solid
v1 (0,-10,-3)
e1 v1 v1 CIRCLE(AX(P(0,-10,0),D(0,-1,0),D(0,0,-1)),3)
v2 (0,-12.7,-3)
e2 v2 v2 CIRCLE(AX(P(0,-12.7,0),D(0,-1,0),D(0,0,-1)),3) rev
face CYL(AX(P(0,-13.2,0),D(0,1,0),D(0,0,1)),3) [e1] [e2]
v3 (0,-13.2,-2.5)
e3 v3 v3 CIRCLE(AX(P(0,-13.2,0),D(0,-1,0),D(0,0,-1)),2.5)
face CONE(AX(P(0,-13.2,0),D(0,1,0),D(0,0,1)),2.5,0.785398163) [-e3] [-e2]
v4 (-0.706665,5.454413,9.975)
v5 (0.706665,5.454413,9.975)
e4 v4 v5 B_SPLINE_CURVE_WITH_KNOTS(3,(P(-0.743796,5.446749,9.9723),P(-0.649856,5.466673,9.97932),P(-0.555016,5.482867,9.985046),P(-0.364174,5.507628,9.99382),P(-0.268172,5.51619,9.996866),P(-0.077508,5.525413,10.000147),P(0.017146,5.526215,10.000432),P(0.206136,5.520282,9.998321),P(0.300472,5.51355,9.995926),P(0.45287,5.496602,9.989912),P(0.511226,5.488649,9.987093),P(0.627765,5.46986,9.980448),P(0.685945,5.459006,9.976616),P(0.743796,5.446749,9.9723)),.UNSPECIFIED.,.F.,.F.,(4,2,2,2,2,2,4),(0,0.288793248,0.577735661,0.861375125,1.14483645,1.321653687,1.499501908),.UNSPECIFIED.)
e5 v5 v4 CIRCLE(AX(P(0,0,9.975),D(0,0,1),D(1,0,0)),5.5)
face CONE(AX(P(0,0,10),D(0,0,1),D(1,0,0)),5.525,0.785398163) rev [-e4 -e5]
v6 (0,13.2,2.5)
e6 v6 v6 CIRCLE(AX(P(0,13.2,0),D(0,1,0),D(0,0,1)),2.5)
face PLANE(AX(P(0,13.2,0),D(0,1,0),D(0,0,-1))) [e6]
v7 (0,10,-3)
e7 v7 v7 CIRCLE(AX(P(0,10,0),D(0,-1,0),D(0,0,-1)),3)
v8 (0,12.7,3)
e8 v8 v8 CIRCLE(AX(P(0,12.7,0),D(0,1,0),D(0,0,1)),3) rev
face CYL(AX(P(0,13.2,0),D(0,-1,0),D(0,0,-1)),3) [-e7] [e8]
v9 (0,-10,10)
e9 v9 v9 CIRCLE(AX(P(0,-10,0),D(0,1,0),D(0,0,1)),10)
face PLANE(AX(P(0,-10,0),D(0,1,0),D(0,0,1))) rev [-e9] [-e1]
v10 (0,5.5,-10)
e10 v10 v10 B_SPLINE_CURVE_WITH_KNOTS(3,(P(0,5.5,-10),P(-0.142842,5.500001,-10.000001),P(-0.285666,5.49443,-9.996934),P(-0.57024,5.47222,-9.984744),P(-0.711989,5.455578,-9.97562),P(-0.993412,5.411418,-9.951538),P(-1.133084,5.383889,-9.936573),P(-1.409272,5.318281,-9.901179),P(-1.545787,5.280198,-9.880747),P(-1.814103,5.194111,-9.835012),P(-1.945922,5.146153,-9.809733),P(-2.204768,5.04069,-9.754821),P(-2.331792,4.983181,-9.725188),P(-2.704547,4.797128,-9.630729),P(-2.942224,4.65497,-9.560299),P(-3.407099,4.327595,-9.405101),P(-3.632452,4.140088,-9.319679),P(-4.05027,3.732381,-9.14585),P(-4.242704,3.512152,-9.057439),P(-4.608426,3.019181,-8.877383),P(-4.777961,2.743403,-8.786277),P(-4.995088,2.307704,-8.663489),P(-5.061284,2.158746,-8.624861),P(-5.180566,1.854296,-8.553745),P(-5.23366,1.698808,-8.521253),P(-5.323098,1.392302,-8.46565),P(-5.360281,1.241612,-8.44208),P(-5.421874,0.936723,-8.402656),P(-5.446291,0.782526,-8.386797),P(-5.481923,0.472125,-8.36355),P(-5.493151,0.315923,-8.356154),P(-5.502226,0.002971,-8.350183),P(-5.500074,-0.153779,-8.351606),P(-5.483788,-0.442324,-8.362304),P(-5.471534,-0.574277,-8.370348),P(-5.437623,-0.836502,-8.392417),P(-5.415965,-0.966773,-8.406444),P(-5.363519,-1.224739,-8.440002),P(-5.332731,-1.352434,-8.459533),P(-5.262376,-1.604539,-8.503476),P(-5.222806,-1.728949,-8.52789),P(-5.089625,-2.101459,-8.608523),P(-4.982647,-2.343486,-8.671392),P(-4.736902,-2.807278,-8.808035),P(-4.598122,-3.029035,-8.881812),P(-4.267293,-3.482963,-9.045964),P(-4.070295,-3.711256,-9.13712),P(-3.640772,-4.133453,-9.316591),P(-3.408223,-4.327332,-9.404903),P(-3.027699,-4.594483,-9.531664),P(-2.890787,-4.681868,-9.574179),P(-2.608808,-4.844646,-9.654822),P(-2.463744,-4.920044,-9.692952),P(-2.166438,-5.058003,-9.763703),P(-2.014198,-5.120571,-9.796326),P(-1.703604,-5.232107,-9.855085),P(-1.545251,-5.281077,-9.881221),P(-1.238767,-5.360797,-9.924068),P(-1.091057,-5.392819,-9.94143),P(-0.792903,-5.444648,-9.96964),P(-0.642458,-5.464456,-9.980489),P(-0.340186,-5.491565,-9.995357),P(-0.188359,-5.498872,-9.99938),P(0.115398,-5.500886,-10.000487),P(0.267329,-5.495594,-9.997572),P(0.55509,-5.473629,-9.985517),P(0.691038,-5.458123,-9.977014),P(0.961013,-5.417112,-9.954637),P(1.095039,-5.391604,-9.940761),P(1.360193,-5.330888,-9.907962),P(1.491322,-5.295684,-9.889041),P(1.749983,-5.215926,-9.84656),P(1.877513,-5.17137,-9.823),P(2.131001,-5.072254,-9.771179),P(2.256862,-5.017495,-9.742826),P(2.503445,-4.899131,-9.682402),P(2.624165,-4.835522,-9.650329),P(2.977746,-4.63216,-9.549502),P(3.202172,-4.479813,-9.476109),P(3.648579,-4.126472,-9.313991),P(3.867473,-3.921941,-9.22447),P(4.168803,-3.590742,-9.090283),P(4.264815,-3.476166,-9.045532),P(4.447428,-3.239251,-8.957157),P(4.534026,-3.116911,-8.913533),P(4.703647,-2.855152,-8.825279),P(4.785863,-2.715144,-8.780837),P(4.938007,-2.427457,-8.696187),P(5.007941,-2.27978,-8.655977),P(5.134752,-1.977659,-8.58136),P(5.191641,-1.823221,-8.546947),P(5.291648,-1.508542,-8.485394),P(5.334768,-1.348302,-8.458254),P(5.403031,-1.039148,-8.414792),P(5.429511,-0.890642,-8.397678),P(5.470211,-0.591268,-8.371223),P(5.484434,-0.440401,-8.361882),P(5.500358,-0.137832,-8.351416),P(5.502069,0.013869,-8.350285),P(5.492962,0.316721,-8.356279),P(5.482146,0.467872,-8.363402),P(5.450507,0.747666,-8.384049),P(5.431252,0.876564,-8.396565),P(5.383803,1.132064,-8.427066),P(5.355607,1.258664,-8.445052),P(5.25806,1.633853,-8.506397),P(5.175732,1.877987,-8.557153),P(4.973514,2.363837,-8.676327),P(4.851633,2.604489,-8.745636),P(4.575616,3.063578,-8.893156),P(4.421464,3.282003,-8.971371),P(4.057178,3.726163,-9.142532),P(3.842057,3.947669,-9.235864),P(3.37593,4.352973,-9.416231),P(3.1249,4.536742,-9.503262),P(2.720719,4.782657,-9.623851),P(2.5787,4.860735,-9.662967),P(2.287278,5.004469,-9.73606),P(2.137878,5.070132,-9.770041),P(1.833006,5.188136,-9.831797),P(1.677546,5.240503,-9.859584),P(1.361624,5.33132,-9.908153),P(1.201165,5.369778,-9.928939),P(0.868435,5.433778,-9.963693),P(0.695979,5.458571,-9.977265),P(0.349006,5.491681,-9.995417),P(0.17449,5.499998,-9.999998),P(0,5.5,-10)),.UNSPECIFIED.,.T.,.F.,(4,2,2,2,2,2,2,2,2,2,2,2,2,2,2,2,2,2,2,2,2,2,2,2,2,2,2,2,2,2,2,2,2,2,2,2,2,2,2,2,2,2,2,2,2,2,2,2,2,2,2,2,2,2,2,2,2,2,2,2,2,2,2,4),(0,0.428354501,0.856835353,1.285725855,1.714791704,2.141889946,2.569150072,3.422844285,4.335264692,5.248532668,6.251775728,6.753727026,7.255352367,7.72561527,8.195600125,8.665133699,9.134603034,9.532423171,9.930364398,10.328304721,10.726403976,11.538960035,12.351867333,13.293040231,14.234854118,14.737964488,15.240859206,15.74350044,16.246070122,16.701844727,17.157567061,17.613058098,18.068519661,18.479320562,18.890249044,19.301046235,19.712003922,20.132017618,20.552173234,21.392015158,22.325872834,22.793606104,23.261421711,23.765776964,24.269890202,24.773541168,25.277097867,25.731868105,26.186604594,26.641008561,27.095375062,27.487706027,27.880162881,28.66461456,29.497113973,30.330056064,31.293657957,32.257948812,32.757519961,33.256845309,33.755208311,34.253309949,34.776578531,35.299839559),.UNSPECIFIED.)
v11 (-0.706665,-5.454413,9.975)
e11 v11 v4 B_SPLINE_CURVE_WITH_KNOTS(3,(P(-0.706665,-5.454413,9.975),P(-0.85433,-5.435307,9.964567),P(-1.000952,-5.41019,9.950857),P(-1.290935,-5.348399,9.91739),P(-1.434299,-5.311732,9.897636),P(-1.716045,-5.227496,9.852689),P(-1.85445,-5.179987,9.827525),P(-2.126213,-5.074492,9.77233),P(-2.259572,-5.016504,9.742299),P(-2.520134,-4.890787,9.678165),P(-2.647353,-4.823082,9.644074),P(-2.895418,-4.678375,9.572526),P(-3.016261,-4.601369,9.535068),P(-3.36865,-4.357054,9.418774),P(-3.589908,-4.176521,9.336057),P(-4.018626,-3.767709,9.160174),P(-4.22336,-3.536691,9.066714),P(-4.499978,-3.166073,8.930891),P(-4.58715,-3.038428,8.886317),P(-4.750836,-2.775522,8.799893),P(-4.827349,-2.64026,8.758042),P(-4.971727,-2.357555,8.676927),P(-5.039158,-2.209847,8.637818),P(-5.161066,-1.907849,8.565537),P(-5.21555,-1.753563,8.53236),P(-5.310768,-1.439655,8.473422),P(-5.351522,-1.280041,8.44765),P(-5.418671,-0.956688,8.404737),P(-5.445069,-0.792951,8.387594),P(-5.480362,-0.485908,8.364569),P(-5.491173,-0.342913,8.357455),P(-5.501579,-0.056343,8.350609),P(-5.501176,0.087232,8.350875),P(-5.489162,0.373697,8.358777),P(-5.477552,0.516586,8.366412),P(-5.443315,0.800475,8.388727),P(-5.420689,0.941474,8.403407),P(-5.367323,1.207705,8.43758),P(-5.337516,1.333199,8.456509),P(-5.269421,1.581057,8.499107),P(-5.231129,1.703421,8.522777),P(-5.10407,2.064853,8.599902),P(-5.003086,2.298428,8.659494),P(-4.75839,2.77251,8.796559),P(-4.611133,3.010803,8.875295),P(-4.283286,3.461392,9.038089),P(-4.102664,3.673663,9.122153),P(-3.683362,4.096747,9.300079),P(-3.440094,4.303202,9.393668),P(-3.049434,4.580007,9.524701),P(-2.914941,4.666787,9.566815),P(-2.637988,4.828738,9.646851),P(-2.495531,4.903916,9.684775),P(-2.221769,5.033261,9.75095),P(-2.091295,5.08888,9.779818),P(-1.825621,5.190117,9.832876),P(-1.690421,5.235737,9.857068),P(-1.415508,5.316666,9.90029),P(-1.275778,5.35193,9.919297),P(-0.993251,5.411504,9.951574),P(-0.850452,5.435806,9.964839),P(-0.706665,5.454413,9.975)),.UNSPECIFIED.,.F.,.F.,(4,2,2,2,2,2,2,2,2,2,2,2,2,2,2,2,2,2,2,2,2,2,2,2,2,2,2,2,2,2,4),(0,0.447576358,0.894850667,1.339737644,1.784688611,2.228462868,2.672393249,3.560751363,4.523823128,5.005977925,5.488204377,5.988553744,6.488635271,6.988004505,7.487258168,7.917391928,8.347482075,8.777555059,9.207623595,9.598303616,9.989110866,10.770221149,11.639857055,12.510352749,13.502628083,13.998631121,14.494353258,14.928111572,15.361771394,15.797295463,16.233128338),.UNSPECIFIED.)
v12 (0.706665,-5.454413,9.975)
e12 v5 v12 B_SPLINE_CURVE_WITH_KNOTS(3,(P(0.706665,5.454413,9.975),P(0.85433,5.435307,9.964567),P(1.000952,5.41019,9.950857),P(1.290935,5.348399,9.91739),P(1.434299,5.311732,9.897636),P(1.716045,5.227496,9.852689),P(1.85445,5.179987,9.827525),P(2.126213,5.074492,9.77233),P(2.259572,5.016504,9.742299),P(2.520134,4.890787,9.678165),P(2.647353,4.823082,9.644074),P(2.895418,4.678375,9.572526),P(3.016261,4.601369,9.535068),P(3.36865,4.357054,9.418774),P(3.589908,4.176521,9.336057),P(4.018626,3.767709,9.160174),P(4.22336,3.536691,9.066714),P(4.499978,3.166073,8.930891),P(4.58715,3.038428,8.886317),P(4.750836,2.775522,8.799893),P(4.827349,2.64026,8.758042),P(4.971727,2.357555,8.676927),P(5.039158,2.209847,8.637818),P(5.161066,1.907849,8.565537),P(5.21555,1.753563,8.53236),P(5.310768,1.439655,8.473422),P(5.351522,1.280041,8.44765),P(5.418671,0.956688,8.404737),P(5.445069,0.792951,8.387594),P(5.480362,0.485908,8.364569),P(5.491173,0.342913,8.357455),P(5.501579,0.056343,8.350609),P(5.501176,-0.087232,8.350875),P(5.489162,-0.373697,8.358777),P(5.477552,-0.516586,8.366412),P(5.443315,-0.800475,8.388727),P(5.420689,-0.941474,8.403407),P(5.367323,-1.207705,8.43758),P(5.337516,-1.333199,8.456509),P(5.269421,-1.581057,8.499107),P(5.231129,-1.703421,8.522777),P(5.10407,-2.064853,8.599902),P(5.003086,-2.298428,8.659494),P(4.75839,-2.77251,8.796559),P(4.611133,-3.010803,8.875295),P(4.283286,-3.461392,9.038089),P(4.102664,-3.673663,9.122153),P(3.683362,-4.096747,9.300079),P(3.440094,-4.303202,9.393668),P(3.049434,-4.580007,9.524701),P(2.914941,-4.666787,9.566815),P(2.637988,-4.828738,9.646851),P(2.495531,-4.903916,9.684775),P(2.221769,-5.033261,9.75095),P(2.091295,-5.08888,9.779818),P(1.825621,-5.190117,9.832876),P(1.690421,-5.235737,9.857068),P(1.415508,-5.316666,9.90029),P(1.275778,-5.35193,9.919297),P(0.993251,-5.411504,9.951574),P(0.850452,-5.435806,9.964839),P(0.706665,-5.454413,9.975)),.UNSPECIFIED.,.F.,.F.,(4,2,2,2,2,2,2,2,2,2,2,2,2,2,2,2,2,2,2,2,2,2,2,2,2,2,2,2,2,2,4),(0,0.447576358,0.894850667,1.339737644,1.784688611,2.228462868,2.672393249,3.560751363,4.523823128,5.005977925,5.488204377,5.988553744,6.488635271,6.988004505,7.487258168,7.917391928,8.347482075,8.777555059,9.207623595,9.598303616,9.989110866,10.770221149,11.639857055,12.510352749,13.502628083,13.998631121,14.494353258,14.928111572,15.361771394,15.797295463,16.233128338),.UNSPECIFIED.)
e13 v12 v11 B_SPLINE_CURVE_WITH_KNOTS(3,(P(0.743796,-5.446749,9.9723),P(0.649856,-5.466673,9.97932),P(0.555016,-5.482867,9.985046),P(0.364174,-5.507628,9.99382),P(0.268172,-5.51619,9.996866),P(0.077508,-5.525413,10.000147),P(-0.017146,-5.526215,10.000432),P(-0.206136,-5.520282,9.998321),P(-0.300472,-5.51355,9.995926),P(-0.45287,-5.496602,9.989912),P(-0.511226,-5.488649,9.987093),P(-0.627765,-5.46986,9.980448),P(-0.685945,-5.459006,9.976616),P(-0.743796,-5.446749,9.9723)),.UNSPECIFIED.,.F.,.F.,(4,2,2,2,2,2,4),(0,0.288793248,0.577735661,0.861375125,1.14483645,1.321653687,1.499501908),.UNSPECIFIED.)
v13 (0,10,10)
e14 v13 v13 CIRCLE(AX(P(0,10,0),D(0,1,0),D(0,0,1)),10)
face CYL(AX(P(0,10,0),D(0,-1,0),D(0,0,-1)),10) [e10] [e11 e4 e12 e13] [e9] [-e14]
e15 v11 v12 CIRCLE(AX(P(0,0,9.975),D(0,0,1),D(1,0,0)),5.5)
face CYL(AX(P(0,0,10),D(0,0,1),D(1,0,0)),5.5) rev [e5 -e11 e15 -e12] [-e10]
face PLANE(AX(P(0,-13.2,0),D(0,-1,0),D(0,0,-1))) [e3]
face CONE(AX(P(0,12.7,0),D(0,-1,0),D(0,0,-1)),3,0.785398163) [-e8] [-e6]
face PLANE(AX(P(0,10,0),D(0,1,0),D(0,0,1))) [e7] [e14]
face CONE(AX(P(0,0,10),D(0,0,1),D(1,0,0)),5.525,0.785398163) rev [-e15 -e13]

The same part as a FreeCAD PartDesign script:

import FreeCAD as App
import Part
import Sketcher
from FreeCAD import Vector
Q = App.Units.Quantity


def edges_at(feature, points):
    """Names of the edges that pass closest to the given points."""
    edges = feature.Shape.Edges
    near = lambda p: min(range(len(edges)), key=lambda i: edges[i].distToShape(Part.Vertex(*p))[0])
    return sorted({f"Edge{near(p) + 1}" for p in points})

doc = App.newDocument("Part")
body = doc.addObject("PartDesign::Body", "Body")

# Sketch on XZ plane
sketch1 = doc.addObject("Sketcher::SketchObject", "Sketch")
body.addObject(sketch1)
sketch1.AttachmentSupport = (doc.XZ_Plane, [""])
sketch1.MapMode = "FlatFace"
sketch1.addGeometry(Part.Circle(Vector(0, 0, 0), Vector(0, 0, 1), 10), False)
sketch1.addConstraint(Sketcher.Constraint("Coincident", 0, 3, -1, 1))
sketch1.addConstraint(Sketcher.Constraint("Diameter", 0, Q("20 mm")))
pad1 = doc.addObject("PartDesign::Pad", "Pad")
body.addObject(pad1)
pad1.Profile = sketch1
pad1.Length = 20
pad1.Midplane = True

# Sketch on XZ plane
sketch2 = doc.addObject("Sketcher::SketchObject", "Sketch001")
body.addObject(sketch2)
sketch2.AttachmentSupport = (doc.XZ_Plane, [""])
sketch2.MapMode = "FlatFace"
sketch2.AttachmentOffset = App.Placement(Vector(0, 0, 10), App.Rotation())
sketch2.addGeometry(Part.Circle(Vector(0, 0, 0), Vector(0, 0, 1), 3), False)
sketch2.addConstraint(Sketcher.Constraint("Coincident", 0, 3, -1, 1))
sketch2.addConstraint(Sketcher.Constraint("Diameter", 0, Q("6 mm")))
pad2 = doc.addObject("PartDesign::Pad", "Pad001")
body.addObject(pad2)
pad2.Profile = sketch2
pad2.Length = 3.2
doc.recompute()

mirrored = doc.addObject("PartDesign::Mirrored", "Mirrored")
body.addObject(mirrored)
mirrored.Originals = [pad2]
mirrored.MirrorPlane = (doc.XZ_Plane, [""])
body.Tip = mirrored

# Sketch on YZ plane
sketch3 = doc.addObject("Sketcher::SketchObject", "Sketch002")
body.addObject(sketch3)
sketch3.AttachmentSupport = (doc.YZ_Plane, [""])
sketch3.MapMode = "FlatFace"
sketch3.addGeometry(Part.LineSegment(Vector(0, -10, 0), Vector(0, 10, 0)), False)
sketch3.addGeometry(Part.LineSegment(Vector(0, 10, 0), Vector(-5.525, 10, 0)), False)
sketch3.addGeometry(Part.LineSegment(Vector(-5.525, 10, 0), Vector(-5.5, 9.975, 0)), False)
sketch3.addGeometry(Part.LineSegment(Vector(-5.5, 9.975, 0), Vector(-5.5, -10, 0)), False)
sketch3.addGeometry(Part.LineSegment(Vector(-5.5, -10, 0), Vector(0, -10, 0)), False)
sketch3.addConstraint(Sketcher.Constraint("Coincident", 0, 2, 1, 1))
sketch3.addConstraint(Sketcher.Constraint("Coincident", 1, 2, 2, 1))
sketch3.addConstraint(Sketcher.Constraint("Coincident", 2, 2, 3, 1))
sketch3.addConstraint(Sketcher.Constraint("Coincident", 3, 2, 4, 1))
sketch3.addConstraint(Sketcher.Constraint("Coincident", 4, 2, 0, 1))
sketch3.addConstraint(Sketcher.Constraint("Vertical", 0))
sketch3.addConstraint(Sketcher.Constraint("Horizontal", 1))
sketch3.addConstraint(Sketcher.Constraint("Vertical", 3))
sketch3.addConstraint(Sketcher.Constraint("Horizontal", 4))
sketch3.addConstraint(Sketcher.Constraint("Symmetric", 0, 2, 4, 2, -1, 1))
sketch3.addConstraint(Sketcher.Constraint("DistanceY", 0, 1, 0, 2, Q("20 mm")))
sketch3.addConstraint(Sketcher.Constraint("Angle", 2, Q("-45 deg")))
sketch3.addConstraint(Sketcher.Constraint("DistanceX", 4, 1, 4, 2, Q("5.5 mm")))
sketch3.addConstraint(Sketcher.Constraint("DistanceX", 1, 2, 1, 1, Q("5.525 mm")))
groove = doc.addObject("PartDesign::Groove", "Groove")
body.addObject(groove)
groove.Profile = sketch3
groove.ReferenceAxis = (sketch3, ["V_Axis"])
groove.Angle = 360
doc.recompute()

chamfer = doc.addObject("PartDesign::Chamfer", "Chamfer")
body.addObject(chamfer)
chamfer.Base = (groove, edges_at(groove, [(0, 13.2, 3), (0, -13.2, 3)]))
chamfer.Size = 0.5

doc.recompute()
